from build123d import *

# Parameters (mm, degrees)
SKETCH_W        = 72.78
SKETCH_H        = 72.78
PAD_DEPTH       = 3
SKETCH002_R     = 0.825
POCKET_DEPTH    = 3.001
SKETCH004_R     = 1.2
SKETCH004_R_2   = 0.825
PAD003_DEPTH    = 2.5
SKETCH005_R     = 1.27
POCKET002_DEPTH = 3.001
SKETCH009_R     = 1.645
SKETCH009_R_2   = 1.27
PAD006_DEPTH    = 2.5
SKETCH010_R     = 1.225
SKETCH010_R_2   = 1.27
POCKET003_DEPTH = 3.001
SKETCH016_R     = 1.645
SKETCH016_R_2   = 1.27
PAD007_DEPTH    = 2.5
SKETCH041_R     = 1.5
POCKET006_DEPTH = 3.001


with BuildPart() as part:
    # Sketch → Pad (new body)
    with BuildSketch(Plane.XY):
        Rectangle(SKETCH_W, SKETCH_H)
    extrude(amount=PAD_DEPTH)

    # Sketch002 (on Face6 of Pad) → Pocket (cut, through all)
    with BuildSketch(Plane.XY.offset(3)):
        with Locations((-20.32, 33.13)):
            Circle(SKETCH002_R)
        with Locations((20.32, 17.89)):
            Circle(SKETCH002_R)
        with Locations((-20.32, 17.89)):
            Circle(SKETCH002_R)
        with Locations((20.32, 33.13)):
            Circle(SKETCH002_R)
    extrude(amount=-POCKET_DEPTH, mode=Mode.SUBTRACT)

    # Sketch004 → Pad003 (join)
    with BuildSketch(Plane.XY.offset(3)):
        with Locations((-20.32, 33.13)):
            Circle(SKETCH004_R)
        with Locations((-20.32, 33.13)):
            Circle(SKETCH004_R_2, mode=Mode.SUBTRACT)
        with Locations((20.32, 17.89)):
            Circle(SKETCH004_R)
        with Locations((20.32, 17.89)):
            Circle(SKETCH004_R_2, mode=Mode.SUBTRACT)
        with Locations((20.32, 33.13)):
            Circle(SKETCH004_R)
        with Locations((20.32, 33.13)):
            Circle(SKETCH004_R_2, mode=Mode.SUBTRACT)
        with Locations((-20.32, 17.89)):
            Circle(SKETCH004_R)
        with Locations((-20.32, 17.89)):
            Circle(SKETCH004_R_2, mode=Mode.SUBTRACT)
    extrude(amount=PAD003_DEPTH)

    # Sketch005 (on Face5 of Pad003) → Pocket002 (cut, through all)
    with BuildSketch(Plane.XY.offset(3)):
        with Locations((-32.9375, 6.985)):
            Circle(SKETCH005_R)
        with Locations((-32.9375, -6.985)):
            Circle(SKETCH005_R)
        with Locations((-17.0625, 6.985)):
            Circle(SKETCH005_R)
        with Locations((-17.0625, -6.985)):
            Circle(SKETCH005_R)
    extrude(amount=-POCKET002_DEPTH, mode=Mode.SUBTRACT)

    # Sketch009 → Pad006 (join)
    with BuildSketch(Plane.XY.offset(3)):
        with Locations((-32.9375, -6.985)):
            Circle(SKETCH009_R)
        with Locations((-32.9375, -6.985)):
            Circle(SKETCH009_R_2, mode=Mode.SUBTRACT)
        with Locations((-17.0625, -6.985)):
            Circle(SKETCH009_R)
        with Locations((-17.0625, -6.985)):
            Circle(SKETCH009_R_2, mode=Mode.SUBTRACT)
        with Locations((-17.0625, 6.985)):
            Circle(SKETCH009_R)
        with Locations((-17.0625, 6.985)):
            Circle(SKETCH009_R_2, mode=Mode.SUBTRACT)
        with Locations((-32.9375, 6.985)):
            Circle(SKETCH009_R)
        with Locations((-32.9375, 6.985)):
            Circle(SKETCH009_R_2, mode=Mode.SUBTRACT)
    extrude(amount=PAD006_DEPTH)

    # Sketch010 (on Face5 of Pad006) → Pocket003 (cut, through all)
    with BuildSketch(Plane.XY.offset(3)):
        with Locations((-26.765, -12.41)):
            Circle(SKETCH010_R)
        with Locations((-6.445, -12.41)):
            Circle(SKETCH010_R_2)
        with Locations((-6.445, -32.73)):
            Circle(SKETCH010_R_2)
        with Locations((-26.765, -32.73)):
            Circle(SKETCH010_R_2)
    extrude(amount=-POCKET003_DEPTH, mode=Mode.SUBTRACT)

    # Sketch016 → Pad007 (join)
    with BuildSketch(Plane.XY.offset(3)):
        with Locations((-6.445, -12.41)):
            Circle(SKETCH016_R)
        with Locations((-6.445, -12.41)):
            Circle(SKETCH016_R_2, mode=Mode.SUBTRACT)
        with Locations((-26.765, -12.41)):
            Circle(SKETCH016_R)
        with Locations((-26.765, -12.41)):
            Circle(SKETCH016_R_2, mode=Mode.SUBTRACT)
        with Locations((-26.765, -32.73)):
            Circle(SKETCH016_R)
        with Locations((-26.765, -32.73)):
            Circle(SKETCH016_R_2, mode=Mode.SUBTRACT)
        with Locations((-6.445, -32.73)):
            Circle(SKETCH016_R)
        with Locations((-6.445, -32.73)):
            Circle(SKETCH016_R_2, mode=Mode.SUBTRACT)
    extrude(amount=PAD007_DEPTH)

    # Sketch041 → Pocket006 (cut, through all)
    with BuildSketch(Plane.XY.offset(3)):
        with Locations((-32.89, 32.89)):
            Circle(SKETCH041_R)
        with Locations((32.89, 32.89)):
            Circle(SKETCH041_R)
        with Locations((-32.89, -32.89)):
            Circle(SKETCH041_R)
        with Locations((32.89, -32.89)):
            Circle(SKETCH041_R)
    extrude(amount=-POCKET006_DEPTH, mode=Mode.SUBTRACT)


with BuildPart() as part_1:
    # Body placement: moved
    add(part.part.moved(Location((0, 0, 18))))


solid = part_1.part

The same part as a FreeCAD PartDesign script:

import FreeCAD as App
import Part
import Sketcher

V = App.Vector
Q = App.Units.Quantity

doc = App.newDocument("Part")
body = doc.addObject("PartDesign::Body", "Body")

sketch1 = doc.addObject("Sketcher::SketchObject", "Sketch")
body.addObject(sketch1)
sketch1.AttachmentSupport = (doc.XY_Plane, [""])
sketch1.MapMode = "FlatFace"
sketch1.addGeometry(Part.LineSegment(V(-36, 36, 0), V(-36, -36, 0)), False)
sketch1.addGeometry(Part.LineSegment(V(-36, -36, 0), V(36, -36, 0)), False)
sketch1.addGeometry(Part.LineSegment(V(36, -36, 0), V(36, 36, 0)), False)
sketch1.addGeometry(Part.LineSegment(V(36, 36, 0), V(-36, 36, 0)), False)
sketch1.addConstraint(Sketcher.Constraint("Coincident", 0, 2, 1, 1))
sketch1.addConstraint(Sketcher.Constraint("Coincident", 1, 2, 2, 1))
sketch1.addConstraint(Sketcher.Constraint("Coincident", 2, 2, 3, 1))
sketch1.addConstraint(Sketcher.Constraint("Coincident", 3, 2, 0, 1))
sketch1.addConstraint(Sketcher.Constraint("Vertical", 0))
sketch1.addConstraint(Sketcher.Constraint("Horizontal", 1))
sketch1.addConstraint(Sketcher.Constraint("Vertical", 2))
sketch1.addConstraint(Sketcher.Constraint("Horizontal", 3))
sketch1.addConstraint(Sketcher.Constraint("Symmetric", 0, 2, 2, 2, -1, 1))
sketch1.addConstraint(Sketcher.Constraint("Equal", 3, 0))
sketch1.addConstraint(Sketcher.Constraint("DistanceX", 1, 1, 1, 2, Q("72.78 mm")))
pad1 = doc.addObject("PartDesign::Pad", "Pad")
body.addObject(pad1)
pad1.Profile = sketch1
pad1.Length = 3

sketch2 = doc.addObject("Sketcher::SketchObject", "Sketch001")
body.addObject(sketch2)
sketch2.AttachmentSupport = (doc.XY_Plane, [""])
sketch2.MapMode = "FlatFace"
sketch2.AttachmentOffset = App.Placement(V(0, 0, 3), App.Rotation())
sketch2.addGeometry(Part.Circle(V(-20.3, 33.1, 0), V(0, 0, 1), 0.8), False)
sketch2.addGeometry(Part.Circle(V(20.3, 17.9, 0), V(0, 0, 1), 0.8), False)
sketch2.addGeometry(Part.Circle(V(-20.3, 17.9, 0), V(0, 0, 1), 0.8), False)
sketch2.addGeometry(Part.Circle(V(20.3, 33.1, 0), V(0, 0, 1), 0.8), False)
sketch2.addConstraint(Sketcher.Constraint("Equal", 0, 1))
sketch2.addConstraint(Sketcher.Constraint("Equal", 1, 2))
sketch2.addConstraint(Sketcher.Constraint("Equal", 2, 3))
sketch2.addConstraint(Sketcher.Constraint("Symmetric", 1, 3, 2, 3, -2))
sketch2.addConstraint(Sketcher.Constraint("Symmetric", 0, 3, 3, 3, -2))
sketch2.addConstraint(Sketcher.Constraint("Vertical", 0, 3, 2, 3))
sketch2.addConstraint(Sketcher.Constraint("Diameter", 0, Q("1.65 mm")))
sketch2.addConstraint(Sketcher.Constraint("DistanceX", 0, 3, -1, 1, Q("20.32 mm")))
sketch2.addConstraint(Sketcher.Constraint("DistanceY", -1, 1, 0, 3, Q("33.13 mm")))
sketch2.addConstraint(Sketcher.Constraint("DistanceY", -1, 1, 1, 3, Q("17.89 mm")))
pocket1 = doc.addObject("PartDesign::Pocket", "Pocket")
body.addObject(pocket1)
pocket1.Profile = sketch2
pocket1.Type = "ThroughAll"

sketch3 = doc.addObject("Sketcher::SketchObject", "Sketch002")
body.addObject(sketch3)
sketch3.AttachmentSupport = (doc.XY_Plane, [""])
sketch3.MapMode = "FlatFace"
sketch3.AttachmentOffset = App.Placement(V(0, 0, 3), App.Rotation())
sketch3.addGeometry(Part.Circle(V(-20.3, 33.1, 0), V(0, 0, 1), 1.2), False)
sketch3.addGeometry(Part.Circle(V(-20.3, 33.1, 0), V(0, 0, 1), 0.8), False)
sketch3.addGeometry(Part.Circle(V(20.3, 17.9, 0), V(0, 0, 1), 1.2), False)
sketch3.addGeometry(Part.Circle(V(20.3, 17.9, 0), V(0, 0, 1), 0.8), False)
sketch3.addGeometry(Part.Circle(V(20.3, 33.1, 0), V(0, 0, 1), 1.2), False)
sketch3.addGeometry(Part.Circle(V(20.3, 33.1, 0), V(0, 0, 1), 0.8), False)
sketch3.addGeometry(Part.Circle(V(-20.3, 17.9, 0), V(0, 0, 1), 1.2), False)
sketch3.addGeometry(Part.Circle(V(-20.3, 17.9, 0), V(0, 0, 1), 0.8), False)
sketch3.addConstraint(Sketcher.Constraint("Coincident", 1, 3, 0, 3))
sketch3.addConstraint(Sketcher.Constraint("Coincident", 3, 3, 2, 3))
sketch3.addConstraint(Sketcher.Constraint("Coincident", 5, 3, 4, 3))
sketch3.addConstraint(Sketcher.Constraint("Coincident", 7, 3, 6, 3))
sketch3.addConstraint(Sketcher.Constraint("Equal", 0, 2))
sketch3.addConstraint(Sketcher.Constraint("Equal", 1, 3))
sketch3.addConstraint(Sketcher.Constraint("Equal", 2, 4))
sketch3.addConstraint(Sketcher.Constraint("Equal", 3, 5))
sketch3.addConstraint(Sketcher.Constraint("Equal", 4, 6))
sketch3.addConstraint(Sketcher.Constraint("Equal", 5, 7))
sketch3.addConstraint(Sketcher.Constraint("Symmetric", 0, 3, 4, 3, -2))
sketch3.addConstraint(Sketcher.Constraint("Symmetric", 2, 3, 6, 3, -2))
sketch3.addConstraint(Sketcher.Constraint("Vertical", 3, 3, 4, 3))
sketch3.addConstraint(Sketcher.Constraint("Diameter", 0, Q("2.4 mm")))
sketch3.addConstraint(Sketcher.Constraint("Diameter", 1, Q("1.65 mm")))
sketch3.addConstraint(Sketcher.Constraint("DistanceX", 0, 3, -1, 1, Q("20.32 mm")))
sketch3.addConstraint(Sketcher.Constraint("DistanceY", -1, 1, 0, 3, Q("33.13 mm")))
sketch3.addConstraint(Sketcher.Constraint("DistanceY", -1, 1, 2, 3, Q("17.89 mm")))
pad2 = doc.addObject("PartDesign::Pad", "Pad001")
body.addObject(pad2)
pad2.Profile = sketch3
pad2.Length = 2.5

sketch4 = doc.addObject("Sketcher::SketchObject", "Sketch003")
body.addObject(sketch4)
sketch4.AttachmentSupport = (doc.XY_Plane, [""])
sketch4.MapMode = "FlatFace"
sketch4.AttachmentOffset = App.Placement(V(0, 0, 3), App.Rotation())
sketch4.addGeometry(Part.Circle(V(-32.9, 7, 0), V(0, 0, 1), 1.3), False)
sketch4.addGeometry(Part.Circle(V(-32.9, -7, 0), V(0, 0, 1), 1.3), False)
sketch4.addGeometry(Part.Circle(V(-17.1, 7, 0), V(0, 0, 1), 1.3), False)
sketch4.addGeometry(Part.Circle(V(-17.1, -7, 0), V(0, 0, 1), 1.3), False)
sketch4.addConstraint(Sketcher.Constraint("Equal", 0, 1))
sketch4.addConstraint(Sketcher.Constraint("Equal", 1, 2))
sketch4.addConstraint(Sketcher.Constraint("Equal", 2, 3))
sketch4.addConstraint(Sketcher.Constraint("Symmetric", 0, 3, 1, 3, -1))
sketch4.addConstraint(Sketcher.Constraint("Symmetric", 2, 3, 3, 3, -1))
sketch4.addConstraint(Sketcher.Constraint("Horizontal", 0, 3, 2, 3))
sketch4.addConstraint(Sketcher.Constraint("Diameter", 0, Q("2.54 mm")))
sketch4.addConstraint(Sketcher.Constraint("DistanceY", 1, 3, 0, 3, Q("13.97 mm")))
sketch4.addConstraint(Sketcher.Constraint("DistanceX", 0, 3, 2, 3, Q("15.875 mm")))
sketch4.addConstraint(Sketcher.Constraint("DistanceX", 0, 3, -1, 1, Q("32.9375 mm")))
pocket2 = doc.addObject("PartDesign::Pocket", "Pocket001")
body.addObject(pocket2)
pocket2.Profile = sketch4
pocket2.Type = "ThroughAll"

sketch5 = doc.addObject("Sketcher::SketchObject", "Sketch004")
body.addObject(sketch5)
sketch5.AttachmentSupport = (doc.XY_Plane, [""])
sketch5.MapMode = "FlatFace"
sketch5.AttachmentOffset = App.Placement(V(0, 0, 3), App.Rotation())
sketch5.addGeometry(Part.Circle(V(-32.9, -7, 0), V(0, 0, 1), 1.6), False)
sketch5.addGeometry(Part.Circle(V(-32.9, -7, 0), V(0, 0, 1), 1.3), False)
sketch5.addGeometry(Part.Circle(V(-17.1, -7, 0), V(0, 0, 1), 1.6), False)
sketch5.addGeometry(Part.Circle(V(-17.1, -7, 0), V(0, 0, 1), 1.3), False)
sketch5.addGeometry(Part.Circle(V(-17.1, 7, 0), V(0, 0, 1), 1.6), False)
sketch5.addGeometry(Part.Circle(V(-17.1, 7, 0), V(0, 0, 1), 1.3), False)
sketch5.addGeometry(Part.Circle(V(-32.9, 7, 0), V(0, 0, 1), 1.6), False)
sketch5.addGeometry(Part.Circle(V(-32.9, 7, 0), V(0, 0, 1), 1.3), False)
sketch5.addConstraint(Sketcher.Constraint("Coincident", 1, 3, 0, 3))
sketch5.addConstraint(Sketcher.Constraint("Coincident", 3, 3, 2, 3))
sketch5.addConstraint(Sketcher.Constraint("Coincident", 5, 3, 4, 3))
sketch5.addConstraint(Sketcher.Constraint("Coincident", 7, 3, 6, 3))
sketch5.addConstraint(Sketcher.Constraint("Equal", 0, 2))
sketch5.addConstraint(Sketcher.Constraint("Equal", 1, 3))
sketch5.addConstraint(Sketcher.Constraint("Equal", 2, 4))
sketch5.addConstraint(Sketcher.Constraint("Equal", 3, 5))
sketch5.addConstraint(Sketcher.Constraint("Equal", 4, 6))
sketch5.addConstraint(Sketcher.Constraint("Equal", 5, 7))
sketch5.addConstraint(Sketcher.Constraint("Symmetric", 2, 3, 4, 3, -1))
sketch5.addConstraint(Sketcher.Constraint("Symmetric", 0, 3, 6, 3, -1))
sketch5.addConstraint(Sketcher.Constraint("Horizontal", 1, 3, 2, 3))
sketch5.addConstraint(Sketcher.Constraint("Diameter", 0, Q("3.29 mm")))
sketch5.addConstraint(Sketcher.Constraint("Diameter", 1, Q("2.54 mm")))
sketch5.addConstraint(Sketcher.Constraint("DistanceY", 2, 3, 4, 3, Q("13.97 mm")))
sketch5.addConstraint(Sketcher.Constraint("DistanceX", 0, 3, 2, 3, Q("15.875 mm")))
sketch5.addConstraint(Sketcher.Constraint("DistanceX", 0, 3, -1, 1, Q("32.9375 mm")))
pad3 = doc.addObject("PartDesign::Pad", "Pad002")
body.addObject(pad3)
pad3.Profile = sketch5
pad3.Length = 2.5

sketch6 = doc.addObject("Sketcher::SketchObject", "Sketch005")
body.addObject(sketch6)
sketch6.AttachmentSupport = (doc.XY_Plane, [""])
sketch6.MapMode = "FlatFace"
sketch6.AttachmentOffset = App.Placement(V(0, 0, 3), App.Rotation())
sketch6.addGeometry(Part.Circle(V(-26.8, -12.4, 0), V(0, 0, 1), 1.2), False)
sketch6.addGeometry(Part.Circle(V(-6.4, -12.4, 0), V(0, 0, 1), 1.3), False)
sketch6.addGeometry(Part.Circle(V(-6.4, -32.7, 0), V(0, 0, 1), 1.3), False)
sketch6.addGeometry(Part.Circle(V(-26.8, -32.7, 0), V(0, 0, 1), 1.3), False)
sketch6.addConstraint(Sketcher.Constraint("Equal", 1, 2))
sketch6.addConstraint(Sketcher.Constraint("Equal", 2, 3))
sketch6.addConstraint(Sketcher.Constraint("Horizontal", 0, 3, 1, 3))
sketch6.addConstraint(Sketcher.Constraint("Horizontal", 2, 3, 3, 3))
sketch6.addConstraint(Sketcher.Constraint("Vertical", 1, 3, 2, 3))
sketch6.addConstraint(Sketcher.Constraint("Vertical", 0, 3, 3, 3))
sketch6.addConstraint(Sketcher.Constraint("Diameter", 0, Q("2.45 mm")))
sketch6.addConstraint(Sketcher.Constraint("Diameter", 1, Q("2.54 mm")))
sketch6.addConstraint(Sketcher.Constraint("DistanceY", 0, 3, -1, 1, Q("12.41 mm")))
sketch6.addConstraint(Sketcher.Constraint("DistanceY", 2, 3, -1, 1, Q("32.73 mm")))
sketch6.addConstraint(Sketcher.Constraint("DistanceX", 0, 3, 1, 3, Q("20.32 mm")))
sketch6.addConstraint(Sketcher.Constraint("DistanceX", 0, 3, -1, 1, Q("26.765 mm")))
pocket3 = doc.addObject("PartDesign::Pocket", "Pocket002")
body.addObject(pocket3)
pocket3.Profile = sketch6
pocket3.Type = "ThroughAll"

sketch7 = doc.addObject("Sketcher::SketchObject", "Sketch006")
body.addObject(sketch7)
sketch7.AttachmentSupport = (doc.XY_Plane, [""])
sketch7.MapMode = "FlatFace"
sketch7.AttachmentOffset = App.Placement(V(0, 0, 3), App.Rotation())
sketch7.addGeometry(Part.Circle(V(-6.4, -12.4, 0), V(0, 0, 1), 1.6), False)
sketch7.addGeometry(Part.Circle(V(-6.4, -12.4, 0), V(0, 0, 1), 1.3), False)
sketch7.addGeometry(Part.Circle(V(-26.8, -12.4, 0), V(0, 0, 1), 1.6), False)
sketch7.addGeometry(Part.Circle(V(-26.8, -12.4, 0), V(0, 0, 1), 1.3), False)
sketch7.addGeometry(Part.Circle(V(-26.8, -32.7, 0), V(0, 0, 1), 1.6), False)
sketch7.addGeometry(Part.Circle(V(-26.8, -32.7, 0), V(0, 0, 1), 1.3), False)
sketch7.addGeometry(Part.Circle(V(-6.4, -32.7, 0), V(0, 0, 1), 1.6), False)
sketch7.addGeometry(Part.Circle(V(-6.4, -32.7, 0), V(0, 0, 1), 1.3), False)
sketch7.addConstraint(Sketcher.Constraint("Coincident", 1, 3, 0, 3))
sketch7.addConstraint(Sketcher.Constraint("Coincident", 3, 3, 2, 3))
sketch7.addConstraint(Sketcher.Constraint("Coincident", 5, 3, 4, 3))
sketch7.addConstraint(Sketcher.Constraint("Coincident", 7, 3, 6, 3))
sketch7.addConstraint(Sketcher.Constraint("Equal", 0, 2))
sketch7.addConstraint(Sketcher.Constraint("Equal", 1, 3))
sketch7.addConstraint(Sketcher.Constraint("Equal", 2, 4))
sketch7.addConstraint(Sketcher.Constraint("Equal", 3, 5))
sketch7.addConstraint(Sketcher.Constraint("Equal", 4, 6))
sketch7.addConstraint(Sketcher.Constraint("Equal", 5, 7))
sketch7.addConstraint(Sketcher.Constraint("Horizontal", 1, 3, 2, 3))
sketch7.addConstraint(Sketcher.Constraint("Horizontal", 5, 3, 6, 3))
sketch7.addConstraint(Sketcher.Constraint("Vertical", 3, 3, 4, 3))
sketch7.addConstraint(Sketcher.Constraint("Vertical", 1, 3, 6, 3))
sketch7.addConstraint(Sketcher.Constraint("Diameter", 0, Q("3.29 mm")))
sketch7.addConstraint(Sketcher.Constraint("Diameter", 1, Q("2.54 mm")))
sketch7.addConstraint(Sketcher.Constraint("DistanceY", 0, 3, -1, 1, Q("12.41 mm")))
sketch7.addConstraint(Sketcher.Constraint("DistanceY", 4, 3, -1, 1, Q("32.73 mm")))
sketch7.addConstraint(Sketcher.Constraint("DistanceX", 2, 3, 0, 3, Q("20.32 mm")))
sketch7.addConstraint(Sketcher.Constraint("DistanceX", 0, 3, -1, 1, Q("6.445 mm")))
pad4 = doc.addObject("PartDesign::Pad", "Pad003")
body.addObject(pad4)
pad4.Profile = sketch7
pad4.Length = 2.5

sketch8 = doc.addObject("Sketcher::SketchObject", "Sketch007")
body.addObject(sketch8)
sketch8.AttachmentSupport = (doc.XY_Plane, [""])
sketch8.MapMode = "FlatFace"
sketch8.AttachmentOffset = App.Placement(V(0, 0, 3), App.Rotation())
sketch8.addGeometry(Part.Circle(V(-32.9, 32.9, 0), V(0, 0, 1), 1.5), False)
sketch8.addGeometry(Part.Circle(V(32.9, 32.9, 0), V(0, 0, 1), 1.5), False)
sketch8.addGeometry(Part.Circle(V(-32.9, -32.9, 0), V(0, 0, 1), 1.5), False)
sketch8.addGeometry(Part.Circle(V(32.9, -32.9, 0), V(0, 0, 1), 1.5), False)
sketch8.addConstraint(Sketcher.Constraint("Equal", 0, 1))
sketch8.addConstraint(Sketcher.Constraint("Equal", 1, 2))
sketch8.addConstraint(Sketcher.Constraint("Equal", 2, 3))
sketch8.addConstraint(Sketcher.Constraint("Symmetric", 1, 3, 2, 3, -1, 1))
sketch8.addConstraint(Sketcher.Constraint("Symmetric", 0, 3, 3, 3, -1, 1))
sketch8.addConstraint(Sketcher.Constraint("Symmetric", 0, 3, 1, 3, -2))
sketch8.addConstraint(Sketcher.Constraint("Diameter", 0, Q("3 mm")))
sketch8.addConstraint(Sketcher.Constraint("DistanceX", 0, 3, -1, 1, Q("32.89 mm")))
sketch8.addConstraint(Sketcher.Constraint("DistanceY", -1, 1, 0, 3, Q("32.89 mm")))
pocket4 = doc.addObject("PartDesign::Pocket", "Pocket003")
body.addObject(pocket4)
pocket4.Profile = sketch8
pocket4.Type = "ThroughAll"
body2 = doc.addObject("PartDesign::Body", "Body001")
doc.recompute()

body.Placement = App.Placement(V(0, 0, 18), App.Rotation(V(0, 0, 1), 0))
boolean = doc.addObject("PartDesign::Boolean", "Boolean")
body2.addObject(boolean)
boolean.Type = "Fuse"
boolean.addObjects([body])

doc.recompute()
